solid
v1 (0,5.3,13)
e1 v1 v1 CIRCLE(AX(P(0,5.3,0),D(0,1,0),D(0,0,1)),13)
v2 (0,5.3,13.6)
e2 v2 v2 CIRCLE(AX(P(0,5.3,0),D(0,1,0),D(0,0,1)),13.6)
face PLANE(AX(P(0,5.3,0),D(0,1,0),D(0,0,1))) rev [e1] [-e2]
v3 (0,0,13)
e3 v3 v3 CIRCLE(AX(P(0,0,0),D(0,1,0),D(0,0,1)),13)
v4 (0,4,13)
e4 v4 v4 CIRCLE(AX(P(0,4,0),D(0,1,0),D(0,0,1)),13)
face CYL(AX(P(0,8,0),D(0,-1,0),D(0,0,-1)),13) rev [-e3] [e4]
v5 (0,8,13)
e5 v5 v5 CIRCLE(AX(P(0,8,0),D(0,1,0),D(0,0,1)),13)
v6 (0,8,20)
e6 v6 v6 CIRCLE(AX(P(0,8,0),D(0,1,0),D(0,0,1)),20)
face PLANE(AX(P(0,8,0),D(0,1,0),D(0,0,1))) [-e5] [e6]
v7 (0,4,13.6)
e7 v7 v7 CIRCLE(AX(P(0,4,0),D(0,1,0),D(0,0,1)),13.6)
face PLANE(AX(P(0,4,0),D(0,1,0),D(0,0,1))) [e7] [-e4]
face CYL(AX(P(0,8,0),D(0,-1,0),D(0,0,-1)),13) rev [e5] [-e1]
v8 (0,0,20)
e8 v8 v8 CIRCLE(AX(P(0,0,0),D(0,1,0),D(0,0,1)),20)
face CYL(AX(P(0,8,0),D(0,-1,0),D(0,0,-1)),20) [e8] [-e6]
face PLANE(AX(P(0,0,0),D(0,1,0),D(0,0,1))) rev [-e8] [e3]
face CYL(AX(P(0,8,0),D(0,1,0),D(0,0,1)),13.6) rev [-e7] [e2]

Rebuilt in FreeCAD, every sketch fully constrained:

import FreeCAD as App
import Part
import Sketcher

doc = App.newDocument("Part")
body = doc.addObject("PartDesign::Body", "Body")

# Sketch on XZ plane
sketch1 = body.newObject("Sketcher::SketchObject", "Sketch")
sketch1.AttachmentSupport = (doc.getObject("XZ_Plane"), [""])
sketch1.MapMode = "FlatFace"
sketch1.addGeometry(Part.Circle(App.Vector(0, 0, 0), App.Vector(0, 0, 1), 20), False)
sketch1.addGeometry(Part.Circle(App.Vector(0, 0, 0), App.Vector(0, 0, 1), 13), False)
sketch1.addConstraint(Sketcher.Constraint("Coincident", 0, 3, -1, 1))
sketch1.addConstraint(Sketcher.Constraint("Coincident", 1, 3, -1, 1))
sketch1.addConstraint(Sketcher.Constraint("Diameter", 0, 40.0))
sketch1.addConstraint(Sketcher.Constraint("Diameter", 1, 26.0))
pad1 = body.newObject("PartDesign::Pad", "Pad")
pad1.Profile = sketch1
pad1.Length = 8
pad1.Reversed = True

# Sketch on YZ plane
sketch2 = body.newObject("Sketcher::SketchObject", "Sketch001")
sketch2.AttachmentSupport = (doc.getObject("YZ_Plane"), [""])
sketch2.MapMode = "FlatFace"
sketch2.addGeometry(Part.LineSegment(App.Vector(5.3, -13, 0), App.Vector(4, -13, 0)), False)
sketch2.addGeometry(Part.LineSegment(App.Vector(4, -13, 0), App.Vector(4, -13.6, 0)), False)
sketch2.addGeometry(Part.LineSegment(App.Vector(4, -13.6, 0), App.Vector(5.3, -13.6, 0)), False)
sketch2.addGeometry(Part.LineSegment(App.Vector(5.3, -13.6, 0), App.Vector(5.3, -13, 0)), False)
sketch2.addConstraint(Sketcher.Constraint("Coincident", 0, 2, 1, 1))
sketch2.addConstraint(Sketcher.Constraint("Coincident", 1, 2, 2, 1))
sketch2.addConstraint(Sketcher.Constraint("Coincident", 2, 2, 3, 1))
sketch2.addConstraint(Sketcher.Constraint("Coincident", 3, 2, 0, 1))
sketch2.addConstraint(Sketcher.Constraint("Horizontal", 0))
sketch2.addConstraint(Sketcher.Constraint("Vertical", 1))
sketch2.addConstraint(Sketcher.Constraint("Horizontal", 2))
sketch2.addConstraint(Sketcher.Constraint("Vertical", 3))
sketch2.addConstraint(Sketcher.Constraint("DistanceX", 0, 2, 0, 1, 1.3))
sketch2.addConstraint(Sketcher.Constraint("DistanceY", 1, 2, 1, 1, 0.6))
sketch2.addConstraint(Sketcher.Constraint("DistanceX", -1, 1, 0, 2, 4.0))
sketch2.addConstraint(Sketcher.Constraint("DistanceY", 0, 2, -1, 1, 13.0))
groove = body.newObject("PartDesign::Groove", "Groove")
groove.Profile = sketch2
groove.ReferenceAxis = (sketch2, ["H_Axis"])
groove.Angle = 360

doc.recompute()
